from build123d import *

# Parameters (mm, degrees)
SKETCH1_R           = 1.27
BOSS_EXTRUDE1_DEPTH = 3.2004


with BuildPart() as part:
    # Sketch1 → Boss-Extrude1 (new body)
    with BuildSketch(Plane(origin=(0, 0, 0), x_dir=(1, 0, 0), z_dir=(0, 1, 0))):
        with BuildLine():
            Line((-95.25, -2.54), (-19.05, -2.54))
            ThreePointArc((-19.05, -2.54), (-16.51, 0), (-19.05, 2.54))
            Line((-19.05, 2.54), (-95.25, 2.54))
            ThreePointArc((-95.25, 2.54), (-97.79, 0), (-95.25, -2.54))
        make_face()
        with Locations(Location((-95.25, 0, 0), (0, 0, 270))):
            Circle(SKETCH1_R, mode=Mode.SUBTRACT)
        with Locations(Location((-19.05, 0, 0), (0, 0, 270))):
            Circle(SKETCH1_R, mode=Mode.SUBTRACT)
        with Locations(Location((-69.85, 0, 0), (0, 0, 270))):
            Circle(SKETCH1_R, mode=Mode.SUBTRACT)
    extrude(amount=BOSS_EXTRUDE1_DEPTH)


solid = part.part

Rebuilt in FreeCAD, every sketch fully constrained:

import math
import FreeCAD as App
import Part
import Sketcher

V = App.Vector
Q = App.Units.Quantity

doc = App.newDocument("Part")
params = doc.addObject("Spreadsheet::Sheet", "Params")
for row, (alias, value) in enumerate([
    ("sketch1_diameter", "0.1 in"),
    ("sketch1_radius", "0.1 in"),
    ("sketch1_width", "3 in"),
    ("pad1_length", "0.126 in"),
], start=1):
    params.set(f"A{row}", alias)
    params.set(f"B{row}", "=" + value)
    params.setAlias(f"B{row}", alias)

body = doc.addObject("PartDesign::Body", "Body")

sketch1 = doc.addObject("Sketcher::SketchObject", "Sketch")
body.addObject(sketch1)
sketch1.AttachmentSupport = (doc.XZ_Plane, [""])
sketch1.MapMode = "FlatFace"
sketch1.addGeometry([
    Part.LineSegment(V(-95.2, 2.5, 0), V(-19.1, 2.5, 0)),
    Part.ArcOfCircle(Part.Circle(V(-19.1, 0, 0), V(0, 0, 1), 2.5), math.radians(-90), math.radians(90)),
    Part.LineSegment(V(-19.1, -2.5, 0), V(-95.2, -2.5, 0)),
    Part.ArcOfCircle(Part.Circle(V(-95.2, 0, 0), V(0, 0, 1), 2.5), math.radians(90), math.radians(270)),
    Part.Circle(V(-95.2, 0, 0), V(0, 0, 1), 1.3),
    Part.Circle(V(-69.8, 0, 0), V(0, 0, 1), 1.3),
    Part.Circle(V(-19.1, 0, 0), V(0, 0, 1), 1.3),
], False)
sketch1.addConstraint([
    Sketcher.Constraint("Tangent", 0, 2, 1, 2),
    Sketcher.Constraint("Tangent", 1, 1, 2, 1),
    Sketcher.Constraint("Tangent", 2, 2, 3, 2),
    Sketcher.Constraint("Tangent", 3, 1, 0, 1),
    Sketcher.Constraint("Horizontal", 0),
    Sketcher.Constraint("Horizontal", 2),
    Sketcher.Constraint("Coincident", 4, 3, 3, 3),
    Sketcher.Constraint("Coincident", 6, 3, 1, 3),
    Sketcher.Constraint("Equal", 4, 5),
    Sketcher.Constraint("Equal", 5, 6),
    Sketcher.Constraint("PointOnObject", 1, 3, -1),
    Sketcher.Constraint("PointOnObject", 5, 3, -1),
    Sketcher.Constraint("Diameter", 4, Q("0.1 in")),
    Sketcher.Constraint("Radius", 1, Q("0.1 in")),
    Sketcher.Constraint("DistanceX", 0, 1, 0, 2, Q("3 in")),
    Sketcher.Constraint("DistanceX", 3, 3, 5, 3, Q("1 in")),
    Sketcher.Constraint("DistanceX", 1, 3, -1, 1, Q("0.75 in")),
])
sketch1.setExpression("Constraints[12]", "Params.sketch1_diameter")
sketch1.setExpression("Constraints[13]", "Params.sketch1_radius")
sketch1.setExpression("Constraints[14]", "Params.sketch1_width")
pad1 = doc.addObject("PartDesign::Pad", "Pad")
body.addObject(pad1)
pad1.Profile = sketch1
pad1.setExpression("Length", "Params.pad1_length")
pad1.Reversed = True

doc.recompute()
